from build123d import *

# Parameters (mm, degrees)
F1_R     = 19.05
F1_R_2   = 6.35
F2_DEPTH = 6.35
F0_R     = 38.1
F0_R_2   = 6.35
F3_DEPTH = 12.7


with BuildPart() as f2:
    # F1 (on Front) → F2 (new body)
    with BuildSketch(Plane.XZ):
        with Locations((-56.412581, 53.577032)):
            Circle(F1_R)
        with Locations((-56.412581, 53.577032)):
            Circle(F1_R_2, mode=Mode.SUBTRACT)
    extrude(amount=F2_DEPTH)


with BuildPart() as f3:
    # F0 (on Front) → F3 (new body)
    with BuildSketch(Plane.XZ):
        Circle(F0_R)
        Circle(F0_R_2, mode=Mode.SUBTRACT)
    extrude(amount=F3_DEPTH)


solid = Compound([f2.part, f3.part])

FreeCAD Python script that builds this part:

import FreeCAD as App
import Part
import Sketcher

V = App.Vector
Q = App.Units.Quantity

doc = App.newDocument("Part")
body = doc.addObject("PartDesign::Body", "Body")

sketch1 = body.newObject("Sketcher::SketchObject", "Sketch")
sketch1.AttachmentSupport = (doc.getObject("XZ_Plane"), [""])
sketch1.MapMode = "FlatFace"
sketch1.addGeometry([
    Part.Circle(V(-56, 54, 0), V(0, 0, 1), 19),
    Part.Circle(V(-56, 54, 0), V(0, 0, 1), 6),
], False)
sketch1.addConstraint([
    Sketcher.Constraint("Coincident", 1, 3, 0, 3),
    Sketcher.Constraint("Diameter", 0, Q("1.5 in")),
    Sketcher.Constraint("Diameter", 1, Q("0.5 in")),
    Sketcher.Constraint("DistanceX", 0, 3, -1, 1, 56.412581),
    Sketcher.Constraint("DistanceY", -1, 1, 0, 3, 53.577032),
])
pad1 = body.newObject("PartDesign::Pad", "Pad")
pad1.Profile = sketch1
pad1.Length = Q("0.25 in")
body2 = doc.addObject("PartDesign::Body", "Body001")

sketch2 = body2.newObject("Sketcher::SketchObject", "Sketch001")
sketch2.AttachmentSupport = (doc.getObject("XZ_Plane001"), [""])
sketch2.MapMode = "FlatFace"
sketch2.addGeometry([
    Part.Circle(V(0, 0, 0), V(0, 0, 1), 38),
    Part.Circle(V(0, 0, 0), V(0, 0, 1), 6),
], False)
sketch2.addConstraint([
    Sketcher.Constraint("Coincident", 0, 3, -1, 1),
    Sketcher.Constraint("Coincident", 1, 3, -1, 1),
    Sketcher.Constraint("Diameter", 0, Q("3 in")),
    Sketcher.Constraint("Diameter", 1, Q("0.5 in")),
])
pad2 = body2.newObject("PartDesign::Pad", "Pad001")
pad2.Profile = sketch2
pad2.Length = Q("0.5 in")

doc.recompute()
